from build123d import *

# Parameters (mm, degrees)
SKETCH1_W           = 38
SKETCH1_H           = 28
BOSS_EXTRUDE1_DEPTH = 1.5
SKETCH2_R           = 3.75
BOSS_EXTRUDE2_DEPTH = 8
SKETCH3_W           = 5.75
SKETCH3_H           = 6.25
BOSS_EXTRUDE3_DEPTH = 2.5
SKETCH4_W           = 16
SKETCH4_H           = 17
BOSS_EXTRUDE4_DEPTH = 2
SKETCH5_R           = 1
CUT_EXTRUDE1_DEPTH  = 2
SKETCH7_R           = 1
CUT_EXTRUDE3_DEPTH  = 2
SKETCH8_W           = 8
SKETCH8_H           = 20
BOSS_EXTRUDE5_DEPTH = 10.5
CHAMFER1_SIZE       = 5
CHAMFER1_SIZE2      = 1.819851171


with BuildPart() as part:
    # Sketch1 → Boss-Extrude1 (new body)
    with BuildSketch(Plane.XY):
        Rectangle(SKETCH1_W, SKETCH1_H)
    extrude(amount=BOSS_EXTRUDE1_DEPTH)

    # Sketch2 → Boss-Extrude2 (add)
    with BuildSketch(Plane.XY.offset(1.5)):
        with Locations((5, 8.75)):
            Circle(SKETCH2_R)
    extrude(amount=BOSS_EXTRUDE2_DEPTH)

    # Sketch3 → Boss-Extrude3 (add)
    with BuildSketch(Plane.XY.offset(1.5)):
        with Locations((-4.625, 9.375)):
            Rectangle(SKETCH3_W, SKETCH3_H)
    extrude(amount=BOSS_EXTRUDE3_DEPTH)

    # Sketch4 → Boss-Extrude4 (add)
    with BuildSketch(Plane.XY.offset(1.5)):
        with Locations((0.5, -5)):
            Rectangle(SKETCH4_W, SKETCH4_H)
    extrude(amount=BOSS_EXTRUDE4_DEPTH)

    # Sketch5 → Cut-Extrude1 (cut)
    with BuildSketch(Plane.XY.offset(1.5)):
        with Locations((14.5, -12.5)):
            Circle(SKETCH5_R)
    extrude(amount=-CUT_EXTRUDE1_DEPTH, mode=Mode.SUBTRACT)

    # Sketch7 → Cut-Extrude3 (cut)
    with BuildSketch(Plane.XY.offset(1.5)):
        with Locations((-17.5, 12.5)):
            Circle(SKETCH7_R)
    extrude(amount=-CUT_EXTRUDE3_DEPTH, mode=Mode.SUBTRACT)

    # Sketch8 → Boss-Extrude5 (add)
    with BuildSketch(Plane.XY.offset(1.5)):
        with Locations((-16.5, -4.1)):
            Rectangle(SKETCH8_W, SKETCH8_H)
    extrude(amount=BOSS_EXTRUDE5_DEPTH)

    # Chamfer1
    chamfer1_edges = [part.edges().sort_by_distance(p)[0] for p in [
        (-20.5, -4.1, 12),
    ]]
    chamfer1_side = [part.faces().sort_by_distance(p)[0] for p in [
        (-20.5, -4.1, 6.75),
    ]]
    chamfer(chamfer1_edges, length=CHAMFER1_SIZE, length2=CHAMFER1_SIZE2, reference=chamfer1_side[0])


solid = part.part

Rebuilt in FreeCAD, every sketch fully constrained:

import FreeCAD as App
import Part
import Sketcher
Q = App.Units.Quantity


def edges_at(feature, points):
    """Names of the edges that pass closest to the given points."""
    edges = feature.Shape.Edges
    near = lambda p: min(range(len(edges)), key=lambda i: edges[i].distToShape(Part.Vertex(*p))[0])
    return sorted({f"Edge{near(p) + 1}" for p in points})


def add_polygon(sketch, points):
    """Adds a closed chain of lines whose ends are joined by coincident constraints."""
    first, n = sketch.GeometryCount, len(points)
    for a, b in zip(points, points[1:] + points[:1]):
        sketch.addGeometry(Part.LineSegment(App.Vector(*a, 0), App.Vector(*b, 0)), False)
    for i in range(n):
        sketch.addConstraint(Sketcher.Constraint("Coincident", first + i, 2, first + (i + 1) % n, 1))

doc = App.newDocument("Part")
body = doc.addObject("PartDesign::Body", "Body")

# Sketch on XY plane
sketch1 = doc.addObject("Sketcher::SketchObject", "Sketch")
body.addObject(sketch1)
sketch1.AttachmentSupport = (doc.XY_Plane, [""])
sketch1.MapMode = "FlatFace"
add_polygon(sketch1, [(-19, 14), (-19, -14), (19, -14), (19, 14)])  # lines 0-3
sketch1.addConstraint(Sketcher.Constraint("Vertical", 0))
sketch1.addConstraint(Sketcher.Constraint("Horizontal", 1))
sketch1.addConstraint(Sketcher.Constraint("Vertical", 2))
sketch1.addConstraint(Sketcher.Constraint("Horizontal", 3))
sketch1.addConstraint(Sketcher.Constraint("Symmetric", 0, 2, 2, 2, -1, 1))
sketch1.addConstraint(Sketcher.Constraint("DistanceX", 1, 1, 1, 2, Q("38 mm")))
sketch1.addConstraint(Sketcher.Constraint("DistanceY", 0, 2, 0, 1, Q("28 mm")))
pad1 = doc.addObject("PartDesign::Pad", "Pad")
body.addObject(pad1)
pad1.Profile = sketch1
pad1.Length = 1.5

# Sketch on XY plane
sketch2 = doc.addObject("Sketcher::SketchObject", "Sketch001")
body.addObject(sketch2)
sketch2.AttachmentSupport = (doc.XY_Plane, [""])
sketch2.MapMode = "FlatFace"
sketch2.AttachmentOffset = App.Placement(App.Vector(0, 0, 1.5), App.Rotation())
sketch2.addGeometry(Part.Circle(App.Vector(5, 8.8, 0), App.Vector(0, 0, 1), 3.8), False)
sketch2.addConstraint(Sketcher.Constraint("Diameter", 0, Q("7.5 mm")))
sketch2.addConstraint(Sketcher.Constraint("DistanceX", -1, 1, 0, 3, Q("5 mm")))
sketch2.addConstraint(Sketcher.Constraint("DistanceY", -1, 1, 0, 3, Q("8.75 mm")))
pad2 = doc.addObject("PartDesign::Pad", "Pad001")
body.addObject(pad2)
pad2.Profile = sketch2
pad2.Length = 8

# Sketch on XY plane
sketch3 = doc.addObject("Sketcher::SketchObject", "Sketch002")
body.addObject(sketch3)
sketch3.AttachmentSupport = (doc.XY_Plane, [""])
sketch3.MapMode = "FlatFace"
sketch3.AttachmentOffset = App.Placement(App.Vector(0, 0, 1.5), App.Rotation())
add_polygon(sketch3, [(-8, 12), (-8, 6), (-2, 6), (-2, 12)])  # lines 0-3
sketch3.addConstraint(Sketcher.Constraint("Vertical", 0))
sketch3.addConstraint(Sketcher.Constraint("Horizontal", 1))
sketch3.addConstraint(Sketcher.Constraint("Vertical", 2))
sketch3.addConstraint(Sketcher.Constraint("Horizontal", 3))
sketch3.addConstraint(Sketcher.Constraint("DistanceX", 1, 1, 1, 2, Q("5.75 mm")))
sketch3.addConstraint(Sketcher.Constraint("DistanceY", 0, 2, 0, 1, Q("6.25 mm")))
sketch3.addConstraint(Sketcher.Constraint("DistanceX", 0, 2, -1, 1, Q("7.5 mm")))
sketch3.addConstraint(Sketcher.Constraint("DistanceY", -1, 1, 2, 2, Q("12.5 mm")))
pad3 = doc.addObject("PartDesign::Pad", "Pad002")
body.addObject(pad3)
pad3.Profile = sketch3
pad3.Length = 2.5

# Sketch on XY plane
sketch4 = doc.addObject("Sketcher::SketchObject", "Sketch003")
body.addObject(sketch4)
sketch4.AttachmentSupport = (doc.XY_Plane, [""])
sketch4.MapMode = "FlatFace"
sketch4.AttachmentOffset = App.Placement(App.Vector(0, 0, 1.5), App.Rotation())
add_polygon(sketch4, [(-8, 4), (-8, -14), (8, -14), (8, 4)])  # lines 0-3
sketch4.addConstraint(Sketcher.Constraint("Vertical", 0))
sketch4.addConstraint(Sketcher.Constraint("Horizontal", 1))
sketch4.addConstraint(Sketcher.Constraint("Vertical", 2))
sketch4.addConstraint(Sketcher.Constraint("Horizontal", 3))
sketch4.addConstraint(Sketcher.Constraint("DistanceX", 1, 1, 1, 2, Q("16 mm")))
sketch4.addConstraint(Sketcher.Constraint("DistanceY", 0, 2, 0, 1, Q("17 mm")))
sketch4.addConstraint(Sketcher.Constraint("DistanceX", 0, 2, -1, 1, Q("7.5 mm")))
sketch4.addConstraint(Sketcher.Constraint("DistanceY", 0, 2, -1, 1, Q("13.5 mm")))
pad4 = doc.addObject("PartDesign::Pad", "Pad003")
body.addObject(pad4)
pad4.Profile = sketch4
pad4.Length = 2

# Sketch on XY plane
sketch5 = doc.addObject("Sketcher::SketchObject", "Sketch004")
body.addObject(sketch5)
sketch5.AttachmentSupport = (doc.XY_Plane, [""])
sketch5.MapMode = "FlatFace"
sketch5.AttachmentOffset = App.Placement(App.Vector(0, 0, 1.5), App.Rotation())
sketch5.addGeometry(Part.Circle(App.Vector(14.5, -12.5, 0), App.Vector(0, 0, 1), 1), False)
sketch5.addConstraint(Sketcher.Constraint("Diameter", 0, Q("2 mm")))
sketch5.addConstraint(Sketcher.Constraint("DistanceX", -1, 1, 0, 3, Q("14.5 mm")))
sketch5.addConstraint(Sketcher.Constraint("DistanceY", 0, 3, -1, 1, Q("12.5 mm")))
pocket1 = doc.addObject("PartDesign::Pocket", "Pocket")
body.addObject(pocket1)
pocket1.Profile = sketch5
pocket1.Length = 2

# Sketch on XY plane
sketch6 = doc.addObject("Sketcher::SketchObject", "Sketch005")
body.addObject(sketch6)
sketch6.AttachmentSupport = (doc.XY_Plane, [""])
sketch6.MapMode = "FlatFace"
sketch6.AttachmentOffset = App.Placement(App.Vector(0, 0, 1.5), App.Rotation())
sketch6.addGeometry(Part.Circle(App.Vector(-17.5, 12.5, 0), App.Vector(0, 0, 1), 1), False)
sketch6.addConstraint(Sketcher.Constraint("Diameter", 0, Q("2 mm")))
sketch6.addConstraint(Sketcher.Constraint("DistanceX", 0, 3, -1, 1, Q("17.5 mm")))
sketch6.addConstraint(Sketcher.Constraint("DistanceY", -1, 1, 0, 3, Q("12.5 mm")))
pocket2 = doc.addObject("PartDesign::Pocket", "Pocket001")
body.addObject(pocket2)
pocket2.Profile = sketch6
pocket2.Length = 2

# Sketch on XY plane
sketch7 = doc.addObject("Sketcher::SketchObject", "Sketch006")
body.addObject(sketch7)
sketch7.AttachmentSupport = (doc.XY_Plane, [""])
sketch7.MapMode = "FlatFace"
sketch7.AttachmentOffset = App.Placement(App.Vector(0, 0, 1.5), App.Rotation())
add_polygon(sketch7, [(-20, 6), (-20, -14), (-12, -14), (-12, 6)])  # lines 0-3
sketch7.addConstraint(Sketcher.Constraint("Vertical", 0))
sketch7.addConstraint(Sketcher.Constraint("Horizontal", 1))
sketch7.addConstraint(Sketcher.Constraint("Vertical", 2))
sketch7.addConstraint(Sketcher.Constraint("Horizontal", 3))
sketch7.addConstraint(Sketcher.Constraint("DistanceX", 1, 1, 1, 2, Q("8 mm")))
sketch7.addConstraint(Sketcher.Constraint("DistanceY", 0, 2, 0, 1, Q("20 mm")))
sketch7.addConstraint(Sketcher.Constraint("DistanceX", 0, 2, -1, 1, Q("20.5 mm")))
sketch7.addConstraint(Sketcher.Constraint("DistanceY", 0, 2, -1, 1, Q("14.1 mm")))
pad5 = doc.addObject("PartDesign::Pad", "Pad004")
body.addObject(pad5)
pad5.Profile = sketch7
pad5.Length = 10.5
doc.recompute()

chamfer = doc.addObject("PartDesign::Chamfer", "Chamfer")
body.addObject(chamfer)
chamfer.Base = (pad5, edges_at(pad5, [(-20.5, -4.1, 12)]))
chamfer.ChamferType = "Two distances"
chamfer.Size = 5
chamfer.Size2 = 1.819851

doc.recompute()
